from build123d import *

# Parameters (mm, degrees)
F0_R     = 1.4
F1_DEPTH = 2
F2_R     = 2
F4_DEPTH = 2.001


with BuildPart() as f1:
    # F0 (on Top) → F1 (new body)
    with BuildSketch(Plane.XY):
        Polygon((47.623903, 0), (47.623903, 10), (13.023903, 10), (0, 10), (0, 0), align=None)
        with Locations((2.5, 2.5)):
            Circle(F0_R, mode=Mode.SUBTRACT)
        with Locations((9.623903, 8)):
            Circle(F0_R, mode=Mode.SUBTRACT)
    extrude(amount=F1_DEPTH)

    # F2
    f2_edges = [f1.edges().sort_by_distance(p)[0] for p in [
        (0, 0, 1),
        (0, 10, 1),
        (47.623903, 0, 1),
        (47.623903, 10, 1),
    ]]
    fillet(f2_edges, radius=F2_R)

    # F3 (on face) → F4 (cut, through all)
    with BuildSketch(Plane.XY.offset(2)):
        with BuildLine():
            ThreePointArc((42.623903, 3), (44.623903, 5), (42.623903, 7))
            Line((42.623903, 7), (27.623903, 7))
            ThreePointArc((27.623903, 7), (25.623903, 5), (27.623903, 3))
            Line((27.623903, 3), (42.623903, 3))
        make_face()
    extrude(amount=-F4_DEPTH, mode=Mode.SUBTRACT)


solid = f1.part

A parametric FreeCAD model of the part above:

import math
import FreeCAD as App
import Part
import Sketcher


def edges_at(feature, points):
    """Names of the edges that pass closest to the given points."""
    edges = feature.Shape.Edges
    near = lambda p: min(range(len(edges)), key=lambda i: edges[i].distToShape(Part.Vertex(*p))[0])
    return sorted({f"Edge{near(p) + 1}" for p in points})

doc = App.newDocument("Part")
params = doc.addObject("Spreadsheet::Sheet", "Params")
for row, (alias, value) in enumerate([
    ("sketch1_diameter", "2.8 mm"),
    ("sketch1_height", "10 mm"),
    ("pad1_length", "2 mm"),
    ("fillet_radius", "2 mm"),
    ("sketch2_radius", "2 mm"),
    ("sketch2_width", "15 mm"),
], start=1):
    params.set(f"A{row}", alias)
    params.set(f"B{row}", "=" + value)
    params.setAlias(f"B{row}", alias)

body = doc.addObject("PartDesign::Body", "Body")

sketch1 = body.newObject("Sketcher::SketchObject", "Sketch")
sketch1.AttachmentSupport = (doc.getObject("XY_Plane"), [""])
sketch1.MapMode = "FlatFace"
sketch1.addGeometry(Part.LineSegment(App.Vector(47.6, 0, 0), App.Vector(47.6, 10, 0)), False)
sketch1.addGeometry(Part.LineSegment(App.Vector(47.6, 10, 0), App.Vector(0, 10, 0)), False)
sketch1.addGeometry(Part.LineSegment(App.Vector(0, 10, 0), App.Vector(0, 0, 0)), False)
sketch1.addGeometry(Part.LineSegment(App.Vector(0, 0, 0), App.Vector(47.6, 0, 0)), False)
sketch1.addGeometry(Part.Circle(App.Vector(2.5, 2.5, 0), App.Vector(0, 0, 1), 1.4), False)
sketch1.addGeometry(Part.Circle(App.Vector(9.6, 8, 0), App.Vector(0, 0, 1), 1.4), False)
sketch1.addConstraint(Sketcher.Constraint("Coincident", 0, 2, 1, 1))
sketch1.addConstraint(Sketcher.Constraint("Coincident", 1, 2, 2, 1))
sketch1.addConstraint(Sketcher.Constraint("Coincident", 2, 2, 3, 1))
sketch1.addConstraint(Sketcher.Constraint("Coincident", 3, 2, 0, 1))
sketch1.addConstraint(Sketcher.Constraint("Vertical", 0))
sketch1.addConstraint(Sketcher.Constraint("Horizontal", 1))
sketch1.addConstraint(Sketcher.Constraint("Vertical", 2))
sketch1.addConstraint(Sketcher.Constraint("Horizontal", 3))
sketch1.addConstraint(Sketcher.Constraint("Coincident", 2, 2, -1, 1))
sketch1.addConstraint(Sketcher.Constraint("Equal", 4, 5))
sketch1.addConstraint(Sketcher.Constraint("Diameter", 4, 2.8))
sketch1.addConstraint(Sketcher.Constraint("DistanceY", 0, 1, 0, 2, 10.0))
sketch1.addConstraint(Sketcher.Constraint("DistanceY", -1, 1, 5, 3, 8.0))
sketch1.addConstraint(Sketcher.Constraint("DistanceX", 5, 3, 0, 2, 38.0))
sketch1.addConstraint(Sketcher.Constraint("DistanceX", -1, 1, 4, 3, 2.5))
sketch1.addConstraint(Sketcher.Constraint("DistanceY", -1, 1, 4, 3, 2.5))
sketch1.addConstraint(Sketcher.Constraint("DistanceX", 1, 2, 1, 1, 47.623903))
sketch1.setExpression("Constraints[10]", "Params.sketch1_diameter")
sketch1.setExpression("Constraints[11]", "Params.sketch1_height")
pad1 = body.newObject("PartDesign::Pad", "Pad")
pad1.Profile = sketch1
pad1.setExpression("Length", "Params.pad1_length")
doc.recompute()

fillet = body.newObject("PartDesign::Fillet", "Fillet")
fillet.Base = (pad1, edges_at(pad1, [
    (0, 0, 1),
    (0, 10, 1),
    (47.624, 0, 1),
    (47.624, 10, 1),
]))
fillet.setExpression("Radius", "Params.fillet_radius")

sketch2 = body.newObject("Sketcher::SketchObject", "Sketch001")
sketch2.AttachmentSupport = (doc.getObject("XY_Plane"), [""])
sketch2.MapMode = "FlatFace"
sketch2.AttachmentOffset = App.Placement(App.Vector(0, 0, 2), App.Rotation())
sketch2.addGeometry(Part.ArcOfCircle(Part.Circle(App.Vector(42.6, 5, 0), App.Vector(0, 0, 1), 2), math.radians(-90), math.radians(90)), False)
sketch2.addGeometry(Part.LineSegment(App.Vector(42.6, 7, 0), App.Vector(27.6, 7, 0)), False)
sketch2.addGeometry(Part.ArcOfCircle(Part.Circle(App.Vector(27.6, 5, 0), App.Vector(0, 0, 1), 2), math.radians(90), math.radians(270)), False)
sketch2.addGeometry(Part.LineSegment(App.Vector(27.6, 3, 0), App.Vector(42.6, 3, 0)), False)
sketch2.addConstraint(Sketcher.Constraint("Tangent", 0, 2, 1, 1))
sketch2.addConstraint(Sketcher.Constraint("Tangent", 1, 2, 2, 1))
sketch2.addConstraint(Sketcher.Constraint("Tangent", 2, 2, 3, 1))
sketch2.addConstraint(Sketcher.Constraint("Tangent", 3, 2, 0, 1))
sketch2.addConstraint(Sketcher.Constraint("Horizontal", 1))
sketch2.addConstraint(Sketcher.Constraint("Horizontal", 3))
sketch2.addConstraint(Sketcher.Constraint("Radius", 0, 2.0))
sketch2.addConstraint(Sketcher.Constraint("DistanceX", 1, 2, 1, 1, 15.0))
sketch2.addConstraint(Sketcher.Constraint("DistanceY", -1, 1, 0, 3, 5.0))
sketch2.addConstraint(Sketcher.Constraint("DistanceX", -1, 1, 0, 3, 42.623903))
sketch2.setExpression("Constraints[6]", "Params.sketch2_radius")
sketch2.setExpression("Constraints[7]", "Params.sketch2_width")
pocket1 = body.newObject("PartDesign::Pocket", "Pocket")
pocket1.Profile = sketch2
pocket1.Type = "ThroughAll"

doc.recompute()
